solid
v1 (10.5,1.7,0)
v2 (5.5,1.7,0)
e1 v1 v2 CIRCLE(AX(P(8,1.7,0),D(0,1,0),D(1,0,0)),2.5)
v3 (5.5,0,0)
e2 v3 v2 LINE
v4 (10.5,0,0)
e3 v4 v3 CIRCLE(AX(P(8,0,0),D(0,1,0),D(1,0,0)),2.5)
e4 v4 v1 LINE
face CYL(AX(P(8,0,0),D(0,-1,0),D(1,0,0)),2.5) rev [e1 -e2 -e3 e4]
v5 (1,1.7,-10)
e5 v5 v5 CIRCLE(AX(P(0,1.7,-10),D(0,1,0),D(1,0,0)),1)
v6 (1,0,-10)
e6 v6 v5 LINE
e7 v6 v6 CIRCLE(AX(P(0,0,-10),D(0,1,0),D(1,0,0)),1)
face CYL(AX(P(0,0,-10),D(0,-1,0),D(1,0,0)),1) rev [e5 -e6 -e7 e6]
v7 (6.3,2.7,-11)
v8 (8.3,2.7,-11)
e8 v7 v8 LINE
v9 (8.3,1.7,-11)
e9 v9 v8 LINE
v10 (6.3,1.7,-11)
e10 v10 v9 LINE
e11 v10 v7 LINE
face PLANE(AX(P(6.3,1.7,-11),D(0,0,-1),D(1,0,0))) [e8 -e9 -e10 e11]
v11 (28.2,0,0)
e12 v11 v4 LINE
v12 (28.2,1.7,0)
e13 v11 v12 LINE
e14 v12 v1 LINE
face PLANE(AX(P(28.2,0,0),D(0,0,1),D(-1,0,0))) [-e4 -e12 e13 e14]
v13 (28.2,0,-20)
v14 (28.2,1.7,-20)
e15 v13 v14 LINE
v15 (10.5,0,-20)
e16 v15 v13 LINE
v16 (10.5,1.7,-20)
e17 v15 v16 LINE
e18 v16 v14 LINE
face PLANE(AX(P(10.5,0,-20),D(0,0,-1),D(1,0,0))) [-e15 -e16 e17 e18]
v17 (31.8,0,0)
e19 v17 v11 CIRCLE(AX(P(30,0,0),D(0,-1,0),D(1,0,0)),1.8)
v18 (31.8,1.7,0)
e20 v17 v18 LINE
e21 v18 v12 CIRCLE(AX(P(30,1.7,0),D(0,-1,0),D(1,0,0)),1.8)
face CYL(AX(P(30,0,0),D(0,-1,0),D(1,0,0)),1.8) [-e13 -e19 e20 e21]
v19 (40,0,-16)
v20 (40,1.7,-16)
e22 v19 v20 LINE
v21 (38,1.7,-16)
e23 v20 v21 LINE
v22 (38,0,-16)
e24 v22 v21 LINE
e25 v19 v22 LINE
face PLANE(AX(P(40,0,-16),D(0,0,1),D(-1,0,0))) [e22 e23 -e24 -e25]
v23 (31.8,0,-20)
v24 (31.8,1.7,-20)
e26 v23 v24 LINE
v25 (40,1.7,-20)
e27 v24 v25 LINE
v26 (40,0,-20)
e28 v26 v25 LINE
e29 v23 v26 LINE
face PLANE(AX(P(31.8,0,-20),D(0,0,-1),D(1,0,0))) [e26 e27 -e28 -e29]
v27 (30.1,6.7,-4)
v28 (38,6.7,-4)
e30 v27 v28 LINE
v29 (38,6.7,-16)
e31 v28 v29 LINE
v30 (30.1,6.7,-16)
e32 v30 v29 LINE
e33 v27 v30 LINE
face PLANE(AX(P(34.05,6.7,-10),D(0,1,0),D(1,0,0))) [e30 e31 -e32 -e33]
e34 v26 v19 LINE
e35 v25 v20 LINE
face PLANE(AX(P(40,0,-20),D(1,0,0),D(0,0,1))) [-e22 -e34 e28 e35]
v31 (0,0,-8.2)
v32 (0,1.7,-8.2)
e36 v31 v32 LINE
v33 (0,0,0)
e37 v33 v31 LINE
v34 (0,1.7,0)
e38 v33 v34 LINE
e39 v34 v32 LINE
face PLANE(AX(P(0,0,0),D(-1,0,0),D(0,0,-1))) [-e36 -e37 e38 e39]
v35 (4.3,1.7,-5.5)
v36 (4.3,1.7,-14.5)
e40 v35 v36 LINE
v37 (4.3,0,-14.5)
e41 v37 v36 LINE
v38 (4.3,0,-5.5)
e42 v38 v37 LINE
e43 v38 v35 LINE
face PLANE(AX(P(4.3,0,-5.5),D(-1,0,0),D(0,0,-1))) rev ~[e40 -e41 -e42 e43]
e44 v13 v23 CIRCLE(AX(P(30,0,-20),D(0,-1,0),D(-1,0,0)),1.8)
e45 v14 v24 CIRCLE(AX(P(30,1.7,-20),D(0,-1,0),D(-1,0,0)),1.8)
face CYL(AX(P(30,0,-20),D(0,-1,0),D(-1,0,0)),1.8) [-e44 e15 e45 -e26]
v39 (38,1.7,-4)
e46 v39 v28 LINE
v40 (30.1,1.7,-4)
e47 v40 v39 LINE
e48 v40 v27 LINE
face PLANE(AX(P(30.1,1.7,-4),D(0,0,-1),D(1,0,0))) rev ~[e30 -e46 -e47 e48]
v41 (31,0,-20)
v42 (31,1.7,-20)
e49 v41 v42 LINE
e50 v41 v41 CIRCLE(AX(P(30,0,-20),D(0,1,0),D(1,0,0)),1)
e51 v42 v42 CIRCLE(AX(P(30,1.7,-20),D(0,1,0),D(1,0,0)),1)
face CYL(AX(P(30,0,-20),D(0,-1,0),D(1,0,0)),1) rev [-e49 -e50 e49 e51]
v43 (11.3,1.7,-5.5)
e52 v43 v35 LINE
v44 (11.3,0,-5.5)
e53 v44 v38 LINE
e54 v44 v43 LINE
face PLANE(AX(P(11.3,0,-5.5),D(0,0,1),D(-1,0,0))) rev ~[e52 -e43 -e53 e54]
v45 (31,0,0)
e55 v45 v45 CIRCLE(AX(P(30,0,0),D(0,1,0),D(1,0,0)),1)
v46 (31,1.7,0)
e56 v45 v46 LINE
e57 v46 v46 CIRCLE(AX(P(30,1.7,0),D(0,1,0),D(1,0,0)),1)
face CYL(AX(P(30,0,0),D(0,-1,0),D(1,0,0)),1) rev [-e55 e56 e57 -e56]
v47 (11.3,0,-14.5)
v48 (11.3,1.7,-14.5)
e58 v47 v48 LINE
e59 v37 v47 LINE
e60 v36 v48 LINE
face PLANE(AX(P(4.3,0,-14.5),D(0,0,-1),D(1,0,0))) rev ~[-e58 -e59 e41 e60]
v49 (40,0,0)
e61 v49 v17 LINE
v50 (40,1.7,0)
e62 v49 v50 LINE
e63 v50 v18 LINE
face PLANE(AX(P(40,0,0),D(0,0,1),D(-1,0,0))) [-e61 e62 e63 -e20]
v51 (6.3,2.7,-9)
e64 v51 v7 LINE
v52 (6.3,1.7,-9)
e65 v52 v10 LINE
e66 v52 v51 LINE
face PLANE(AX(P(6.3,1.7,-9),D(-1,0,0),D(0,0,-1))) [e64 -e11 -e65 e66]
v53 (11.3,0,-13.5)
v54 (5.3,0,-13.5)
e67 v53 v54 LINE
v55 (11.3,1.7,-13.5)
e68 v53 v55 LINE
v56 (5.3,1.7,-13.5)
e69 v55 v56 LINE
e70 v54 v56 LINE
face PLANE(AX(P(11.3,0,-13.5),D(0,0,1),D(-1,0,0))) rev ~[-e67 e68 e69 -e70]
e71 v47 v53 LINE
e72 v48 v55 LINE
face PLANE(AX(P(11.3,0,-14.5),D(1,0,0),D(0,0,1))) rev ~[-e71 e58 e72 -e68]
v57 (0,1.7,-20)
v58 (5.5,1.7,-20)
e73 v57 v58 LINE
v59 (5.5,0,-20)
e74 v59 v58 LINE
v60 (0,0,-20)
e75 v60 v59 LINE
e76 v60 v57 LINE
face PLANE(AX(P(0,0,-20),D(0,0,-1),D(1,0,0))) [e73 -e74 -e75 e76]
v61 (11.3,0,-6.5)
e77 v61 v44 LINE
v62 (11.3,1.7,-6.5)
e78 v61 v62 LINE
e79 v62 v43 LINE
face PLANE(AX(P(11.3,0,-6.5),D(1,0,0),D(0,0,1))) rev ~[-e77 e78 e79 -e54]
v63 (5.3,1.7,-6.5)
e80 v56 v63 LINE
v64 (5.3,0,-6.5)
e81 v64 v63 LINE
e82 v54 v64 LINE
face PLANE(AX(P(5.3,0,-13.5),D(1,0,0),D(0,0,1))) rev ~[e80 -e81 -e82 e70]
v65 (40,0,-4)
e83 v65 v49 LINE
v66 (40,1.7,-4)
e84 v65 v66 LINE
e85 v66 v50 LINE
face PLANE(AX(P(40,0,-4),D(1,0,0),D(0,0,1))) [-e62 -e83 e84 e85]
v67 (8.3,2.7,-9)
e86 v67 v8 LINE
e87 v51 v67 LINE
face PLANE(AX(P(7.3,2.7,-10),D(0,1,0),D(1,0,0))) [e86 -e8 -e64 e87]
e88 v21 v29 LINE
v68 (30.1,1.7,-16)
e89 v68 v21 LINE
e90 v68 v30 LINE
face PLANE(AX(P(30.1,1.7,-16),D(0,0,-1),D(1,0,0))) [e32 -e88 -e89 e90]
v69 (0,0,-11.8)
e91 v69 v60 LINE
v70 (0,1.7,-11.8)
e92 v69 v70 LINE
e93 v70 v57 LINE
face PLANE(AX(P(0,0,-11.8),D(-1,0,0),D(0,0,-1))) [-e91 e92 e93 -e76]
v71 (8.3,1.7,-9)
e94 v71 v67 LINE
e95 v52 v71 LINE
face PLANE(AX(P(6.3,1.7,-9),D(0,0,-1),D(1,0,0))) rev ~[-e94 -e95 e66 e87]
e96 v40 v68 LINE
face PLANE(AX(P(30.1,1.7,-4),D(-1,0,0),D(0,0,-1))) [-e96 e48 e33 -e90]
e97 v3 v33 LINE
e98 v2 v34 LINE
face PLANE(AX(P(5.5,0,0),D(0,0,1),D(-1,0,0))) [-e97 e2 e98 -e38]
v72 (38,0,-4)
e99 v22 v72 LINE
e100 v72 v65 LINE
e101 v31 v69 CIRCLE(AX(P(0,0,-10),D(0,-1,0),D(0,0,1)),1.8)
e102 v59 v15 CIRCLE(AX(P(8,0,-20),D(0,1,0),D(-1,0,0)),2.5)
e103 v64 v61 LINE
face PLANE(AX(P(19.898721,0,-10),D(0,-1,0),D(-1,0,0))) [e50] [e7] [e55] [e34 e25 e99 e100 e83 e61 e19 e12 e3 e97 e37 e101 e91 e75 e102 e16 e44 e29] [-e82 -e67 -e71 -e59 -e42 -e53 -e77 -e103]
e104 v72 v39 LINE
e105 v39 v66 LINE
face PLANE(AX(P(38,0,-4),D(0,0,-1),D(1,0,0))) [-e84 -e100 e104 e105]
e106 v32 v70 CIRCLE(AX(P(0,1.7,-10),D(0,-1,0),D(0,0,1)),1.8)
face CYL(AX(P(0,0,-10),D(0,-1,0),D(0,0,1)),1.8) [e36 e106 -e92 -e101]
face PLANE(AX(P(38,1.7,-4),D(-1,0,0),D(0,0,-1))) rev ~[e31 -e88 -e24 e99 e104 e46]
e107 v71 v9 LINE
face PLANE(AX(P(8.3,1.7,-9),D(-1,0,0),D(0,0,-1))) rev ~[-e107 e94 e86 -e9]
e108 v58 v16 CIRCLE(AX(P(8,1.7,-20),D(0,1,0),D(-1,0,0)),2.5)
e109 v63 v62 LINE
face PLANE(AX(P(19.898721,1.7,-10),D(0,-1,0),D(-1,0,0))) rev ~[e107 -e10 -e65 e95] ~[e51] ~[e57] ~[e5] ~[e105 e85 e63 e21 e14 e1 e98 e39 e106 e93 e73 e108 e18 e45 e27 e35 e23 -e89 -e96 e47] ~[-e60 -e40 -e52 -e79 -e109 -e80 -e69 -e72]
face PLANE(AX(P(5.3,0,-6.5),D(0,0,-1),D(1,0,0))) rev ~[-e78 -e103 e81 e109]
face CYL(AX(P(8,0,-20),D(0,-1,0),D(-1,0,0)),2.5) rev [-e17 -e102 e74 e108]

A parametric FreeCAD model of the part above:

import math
import FreeCAD as App
import Part
import Sketcher

doc = App.newDocument("Part")
body = doc.addObject("PartDesign::Body", "Body")

# Sketch on XZ plane
sketch1 = doc.addObject("Sketcher::SketchObject", "Sketch")
body.addObject(sketch1)
sketch1.AttachmentSupport = (doc.XZ_Plane, [""])
sketch1.MapMode = "FlatFace"
sketch1.addGeometry([
    Part.LineSegment(App.Vector(0, -8.2, 0), App.Vector(0, 0, 0)),  # 0
    Part.LineSegment(App.Vector(0, 0, 0), App.Vector(5.5, 0, 0)),  # 1
    Part.ArcOfCircle(Part.Circle(App.Vector(8, 0, 0), App.Vector(0, 0, 1), 2.5), math.radians(180), math.radians(360)),  # 2
    Part.LineSegment(App.Vector(10.5, 0, 0), App.Vector(28.2, 0, 0)),  # 3
    Part.ArcOfCircle(Part.Circle(App.Vector(30, 0, 0), App.Vector(0, 0, 1), 1.8), math.radians(0), math.radians(180)),  # 4
    Part.LineSegment(App.Vector(31.8, 0, 0), App.Vector(40, 0, 0)),  # 5
    Part.LineSegment(App.Vector(40, 0, 0), App.Vector(40, -4, 0)),  # 6
    Part.LineSegment(App.Vector(40, -4, 0), App.Vector(38, -4, 0)),  # 7
    Part.LineSegment(App.Vector(38, -4, 0), App.Vector(38, -16, 0)),  # 8
    Part.LineSegment(App.Vector(38, -16, 0), App.Vector(40, -16, 0)),  # 9
    Part.LineSegment(App.Vector(40, -16, 0), App.Vector(40, -20, 0)),  # 10
    Part.LineSegment(App.Vector(40, -20, 0), App.Vector(31.8, -20, 0)),  # 11
    Part.ArcOfCircle(Part.Circle(App.Vector(30, -20, 0), App.Vector(0, 0, 1), 1.8), math.radians(180), math.radians(360)),  # 12
    Part.LineSegment(App.Vector(28.2, -20, 0), App.Vector(10.5, -20, 0)),  # 13
    Part.ArcOfCircle(Part.Circle(App.Vector(8, -20, 0), App.Vector(0, 0, 1), 2.5), math.radians(0), math.radians(180)),  # 14
    Part.LineSegment(App.Vector(5.5, -20, 0), App.Vector(0, -20, 0)),  # 15
    Part.LineSegment(App.Vector(0, -20, 0), App.Vector(0, -11.8, 0)),  # 16
    Part.ArcOfCircle(Part.Circle(App.Vector(0, -10, 0), App.Vector(0, 0, 1), 1.8), math.radians(90), math.radians(270)),  # 17
    Part.Circle(App.Vector(30, 0, 0), App.Vector(0, 0, 1), 1),  # 18
    Part.Circle(App.Vector(30, -20, 0), App.Vector(0, 0, 1), 1),  # 19
    Part.LineSegment(App.Vector(4.3, -14.5, 0), App.Vector(11.3, -14.5, 0)),  # 20
    Part.LineSegment(App.Vector(11.3, -14.5, 0), App.Vector(11.3, -13.5, 0)),  # 21
    Part.LineSegment(App.Vector(11.3, -13.5, 0), App.Vector(5.3, -13.5, 0)),  # 22
    Part.LineSegment(App.Vector(5.3, -13.5, 0), App.Vector(5.3, -6.5, 0)),  # 23
    Part.LineSegment(App.Vector(5.3, -6.5, 0), App.Vector(11.3, -6.5, 0)),  # 24
    Part.LineSegment(App.Vector(11.3, -6.5, 0), App.Vector(11.3, -5.5, 0)),  # 25
    Part.LineSegment(App.Vector(11.3, -5.5, 0), App.Vector(4.3, -5.5, 0)),  # 26
    Part.LineSegment(App.Vector(4.3, -5.5, 0), App.Vector(4.3, -14.5, 0)),  # 27
    Part.Circle(App.Vector(0, -10, 0), App.Vector(0, 0, 1), 1),  # 28
], False)
sketch1.addConstraint([
    Sketcher.Constraint("Coincident", 0, 2, 1, 1),
    Sketcher.Constraint("Coincident", 1, 2, 2, 1),
    Sketcher.Constraint("Coincident", 2, 2, 3, 1),
    Sketcher.Constraint("Coincident", 3, 2, 4, 2),
    Sketcher.Constraint("Coincident", 4, 1, 5, 1),
    Sketcher.Constraint("Coincident", 5, 2, 6, 1),
    Sketcher.Constraint("Coincident", 6, 2, 7, 1),
    Sketcher.Constraint("Coincident", 7, 2, 8, 1),
    Sketcher.Constraint("Coincident", 8, 2, 9, 1),
    Sketcher.Constraint("Coincident", 9, 2, 10, 1),
    Sketcher.Constraint("Coincident", 10, 2, 11, 1),
    Sketcher.Constraint("Coincident", 11, 2, 12, 2),
    Sketcher.Constraint("Coincident", 12, 1, 13, 1),
    Sketcher.Constraint("Coincident", 13, 2, 14, 1),
    Sketcher.Constraint("Coincident", 14, 2, 15, 1),
    Sketcher.Constraint("Coincident", 15, 2, 16, 1),
    Sketcher.Constraint("Coincident", 16, 2, 17, 2),
    Sketcher.Constraint("Coincident", 17, 1, 0, 1),
    Sketcher.Constraint("Coincident", 20, 2, 21, 1),
    Sketcher.Constraint("Coincident", 21, 2, 22, 1),
    Sketcher.Constraint("Coincident", 22, 2, 23, 1),
    Sketcher.Constraint("Coincident", 23, 2, 24, 1),
    Sketcher.Constraint("Coincident", 24, 2, 25, 1),
    Sketcher.Constraint("Coincident", 25, 2, 26, 1),
    Sketcher.Constraint("Coincident", 26, 2, 27, 1),
    Sketcher.Constraint("Coincident", 27, 2, 20, 1),
    Sketcher.Constraint("Vertical", 0),
    Sketcher.Constraint("Horizontal", 1),
    Sketcher.Constraint("Horizontal", 3),
    Sketcher.Constraint("Horizontal", 5),
    Sketcher.Constraint("Vertical", 6),
    Sketcher.Constraint("Horizontal", 7),
    Sketcher.Constraint("Vertical", 8),
    Sketcher.Constraint("Horizontal", 9),
    Sketcher.Constraint("Vertical", 10),
    Sketcher.Constraint("Horizontal", 11),
    Sketcher.Constraint("Horizontal", 13),
    Sketcher.Constraint("Horizontal", 15),
    Sketcher.Constraint("Vertical", 16),
    Sketcher.Constraint("Horizontal", 20),
    Sketcher.Constraint("Vertical", 21),
    Sketcher.Constraint("Horizontal", 22),
    Sketcher.Constraint("Vertical", 23),
    Sketcher.Constraint("Horizontal", 24),
    Sketcher.Constraint("Vertical", 25),
    Sketcher.Constraint("Horizontal", 26),
    Sketcher.Constraint("Vertical", 27),
    Sketcher.Constraint("Coincident", 0, 2, -1, 1),
    Sketcher.Constraint("Coincident", 18, 3, 4, 3),
    Sketcher.Constraint("Coincident", 19, 3, 12, 3),
    Sketcher.Constraint("Coincident", 28, 3, 17, 3),
    Sketcher.Constraint("Equal", 4, 12),
    Sketcher.Constraint("Equal", 2, 14),
    Sketcher.Constraint("Equal", 12, 17),
    Sketcher.Constraint("Equal", 18, 19),
    Sketcher.Constraint("Equal", 19, 28),
    Sketcher.Constraint("PointOnObject", 2, 3, -1),
    Sketcher.Constraint("PointOnObject", 4, 3, -1),
    Sketcher.Constraint("PointOnObject", 17, 3, -2),
    Sketcher.Constraint("PointOnObject", 2, 2, -1),
    Sketcher.Constraint("PointOnObject", 4, 1, -1),
    Sketcher.Constraint("PointOnObject", 15, 2, -2),
    Sketcher.Constraint("Horizontal", 12, 3, 14, 3),
    Sketcher.Constraint("Horizontal", 19, 3, 10, 2),
    Sketcher.Constraint("Horizontal", 11, 2, 12, 1),
    Sketcher.Constraint("Horizontal", 13, 2, 14, 2),
    Sketcher.Constraint("Vertical", 4, 3, 12, 3),
    Sketcher.Constraint("Vertical", 2, 3, 14, 3),
    Sketcher.Constraint("Vertical", 6, 2, 9, 2),
    Sketcher.Constraint("Vertical", 21, 2, 24, 2),
    Sketcher.Constraint("Equal", 11, 0),
    Sketcher.Constraint("Equal", 6, 10),
    Sketcher.Constraint("Equal", 0, 16),
    Sketcher.Constraint("Equal", 26, 23),
    Sketcher.Constraint("Equal", 21, 25),
    Sketcher.Constraint("Diameter", 18, 2.0),
    Sketcher.Constraint("Radius", 2, 2.5),
    Sketcher.Constraint("Radius", 4, 1.8),
    Sketcher.Constraint("DistanceX", 7, 2, 7, 1, 2.0),
    Sketcher.Constraint("DistanceX", 20, 1, 20, 2, 7.0),
    Sketcher.Constraint("DistanceX", 22, 2, 22, 1, 6.0),
    Sketcher.Constraint("DistanceY", 6, 2, 6, 1, 4.0),
    Sketcher.Constraint("DistanceY", 8, 2, 8, 1, 12.0),
    Sketcher.Constraint("DistanceY", 21, 1, 21, 2, 1.0),
    Sketcher.Constraint("DistanceX", 1, 1, 1, 2, 5.5),
    Sketcher.Constraint("DistanceX", 3, 1, 3, 2, 17.7),
    Sketcher.Constraint("DistanceX", -1, 1, 20, 2, 11.3),
    Sketcher.Constraint("DistanceY", 20, 2, -1, 1, 14.5),
])
pad1 = doc.addObject("PartDesign::Pad", "Pad")
body.addObject(pad1)
pad1.Profile = sketch1
pad1.Length = 1.7
pad1.Reversed = True

# Sketch on XZ plane
sketch2 = doc.addObject("Sketcher::SketchObject", "Sketch001")
body.addObject(sketch2)
sketch2.AttachmentSupport = (doc.XZ_Plane, [""])
sketch2.MapMode = "FlatFace"
sketch2.AttachmentOffset = App.Placement(App.Vector(0, 0, -1.7), App.Rotation())
sketch2.addGeometry([
    Part.LineSegment(App.Vector(6.3, -11, 0), App.Vector(6.3, -9, 0)),
    Part.LineSegment(App.Vector(6.3, -9, 0), App.Vector(8.3, -9, 0)),
    Part.LineSegment(App.Vector(8.3, -9, 0), App.Vector(8.3, -11, 0)),
    Part.LineSegment(App.Vector(8.3, -11, 0), App.Vector(6.3, -11, 0)),
], False)
sketch2.addConstraint([
    Sketcher.Constraint("Coincident", 0, 2, 1, 1),
    Sketcher.Constraint("Coincident", 1, 2, 2, 1),
    Sketcher.Constraint("Coincident", 2, 2, 3, 1),
    Sketcher.Constraint("Coincident", 3, 2, 0, 1),
    Sketcher.Constraint("Vertical", 0),
    Sketcher.Constraint("Horizontal", 1),
    Sketcher.Constraint("Vertical", 2),
    Sketcher.Constraint("Horizontal", 3),
    Sketcher.Constraint("Equal", 3, 0),
    Sketcher.Constraint("DistanceX", 1, 1, 1, 2, 2.0),
    Sketcher.Constraint("DistanceY", 0, 2, -1, 1, 9.0),
    Sketcher.Constraint("DistanceX", -1, 1, 0, 2, 6.3),
])
pad2 = doc.addObject("PartDesign::Pad", "Pad001")
body.addObject(pad2)
pad2.Profile = sketch2
pad2.Length = 1
pad2.Reversed = True

# Sketch on XZ plane
sketch3 = doc.addObject("Sketcher::SketchObject", "Sketch002")
body.addObject(sketch3)
sketch3.AttachmentSupport = (doc.XZ_Plane, [""])
sketch3.MapMode = "FlatFace"
sketch3.AttachmentOffset = App.Placement(App.Vector(0, 0, -1.7), App.Rotation())
sketch3.addGeometry([
    Part.LineSegment(App.Vector(30, -16, 0), App.Vector(30, -4, 0)),
    Part.LineSegment(App.Vector(30, -4, 0), App.Vector(38, -4, 0)),
    Part.LineSegment(App.Vector(38, -4, 0), App.Vector(38, -16, 0)),
    Part.LineSegment(App.Vector(38, -16, 0), App.Vector(30, -16, 0)),
], False)
sketch3.addConstraint([
    Sketcher.Constraint("Coincident", 0, 2, 1, 1),
    Sketcher.Constraint("Coincident", 1, 2, 2, 1),
    Sketcher.Constraint("Coincident", 2, 2, 3, 1),
    Sketcher.Constraint("Coincident", 3, 2, 0, 1),
    Sketcher.Constraint("Vertical", 0),
    Sketcher.Constraint("Horizontal", 1),
    Sketcher.Constraint("Vertical", 2),
    Sketcher.Constraint("Horizontal", 3),
    Sketcher.Constraint("DistanceY", 0, 1, 0, 2, 12.0),
    Sketcher.Constraint("DistanceX", 1, 1, 1, 2, 7.9),
    Sketcher.Constraint("DistanceY", 0, 2, -1, 1, 4.0),
    Sketcher.Constraint("DistanceX", -1, 1, 1, 2, 38.0),
])
pad3 = doc.addObject("PartDesign::Pad", "Pad002")
body.addObject(pad3)
pad3.Profile = sketch3
pad3.Length = 5
pad3.Reversed = True

doc.recompute()
